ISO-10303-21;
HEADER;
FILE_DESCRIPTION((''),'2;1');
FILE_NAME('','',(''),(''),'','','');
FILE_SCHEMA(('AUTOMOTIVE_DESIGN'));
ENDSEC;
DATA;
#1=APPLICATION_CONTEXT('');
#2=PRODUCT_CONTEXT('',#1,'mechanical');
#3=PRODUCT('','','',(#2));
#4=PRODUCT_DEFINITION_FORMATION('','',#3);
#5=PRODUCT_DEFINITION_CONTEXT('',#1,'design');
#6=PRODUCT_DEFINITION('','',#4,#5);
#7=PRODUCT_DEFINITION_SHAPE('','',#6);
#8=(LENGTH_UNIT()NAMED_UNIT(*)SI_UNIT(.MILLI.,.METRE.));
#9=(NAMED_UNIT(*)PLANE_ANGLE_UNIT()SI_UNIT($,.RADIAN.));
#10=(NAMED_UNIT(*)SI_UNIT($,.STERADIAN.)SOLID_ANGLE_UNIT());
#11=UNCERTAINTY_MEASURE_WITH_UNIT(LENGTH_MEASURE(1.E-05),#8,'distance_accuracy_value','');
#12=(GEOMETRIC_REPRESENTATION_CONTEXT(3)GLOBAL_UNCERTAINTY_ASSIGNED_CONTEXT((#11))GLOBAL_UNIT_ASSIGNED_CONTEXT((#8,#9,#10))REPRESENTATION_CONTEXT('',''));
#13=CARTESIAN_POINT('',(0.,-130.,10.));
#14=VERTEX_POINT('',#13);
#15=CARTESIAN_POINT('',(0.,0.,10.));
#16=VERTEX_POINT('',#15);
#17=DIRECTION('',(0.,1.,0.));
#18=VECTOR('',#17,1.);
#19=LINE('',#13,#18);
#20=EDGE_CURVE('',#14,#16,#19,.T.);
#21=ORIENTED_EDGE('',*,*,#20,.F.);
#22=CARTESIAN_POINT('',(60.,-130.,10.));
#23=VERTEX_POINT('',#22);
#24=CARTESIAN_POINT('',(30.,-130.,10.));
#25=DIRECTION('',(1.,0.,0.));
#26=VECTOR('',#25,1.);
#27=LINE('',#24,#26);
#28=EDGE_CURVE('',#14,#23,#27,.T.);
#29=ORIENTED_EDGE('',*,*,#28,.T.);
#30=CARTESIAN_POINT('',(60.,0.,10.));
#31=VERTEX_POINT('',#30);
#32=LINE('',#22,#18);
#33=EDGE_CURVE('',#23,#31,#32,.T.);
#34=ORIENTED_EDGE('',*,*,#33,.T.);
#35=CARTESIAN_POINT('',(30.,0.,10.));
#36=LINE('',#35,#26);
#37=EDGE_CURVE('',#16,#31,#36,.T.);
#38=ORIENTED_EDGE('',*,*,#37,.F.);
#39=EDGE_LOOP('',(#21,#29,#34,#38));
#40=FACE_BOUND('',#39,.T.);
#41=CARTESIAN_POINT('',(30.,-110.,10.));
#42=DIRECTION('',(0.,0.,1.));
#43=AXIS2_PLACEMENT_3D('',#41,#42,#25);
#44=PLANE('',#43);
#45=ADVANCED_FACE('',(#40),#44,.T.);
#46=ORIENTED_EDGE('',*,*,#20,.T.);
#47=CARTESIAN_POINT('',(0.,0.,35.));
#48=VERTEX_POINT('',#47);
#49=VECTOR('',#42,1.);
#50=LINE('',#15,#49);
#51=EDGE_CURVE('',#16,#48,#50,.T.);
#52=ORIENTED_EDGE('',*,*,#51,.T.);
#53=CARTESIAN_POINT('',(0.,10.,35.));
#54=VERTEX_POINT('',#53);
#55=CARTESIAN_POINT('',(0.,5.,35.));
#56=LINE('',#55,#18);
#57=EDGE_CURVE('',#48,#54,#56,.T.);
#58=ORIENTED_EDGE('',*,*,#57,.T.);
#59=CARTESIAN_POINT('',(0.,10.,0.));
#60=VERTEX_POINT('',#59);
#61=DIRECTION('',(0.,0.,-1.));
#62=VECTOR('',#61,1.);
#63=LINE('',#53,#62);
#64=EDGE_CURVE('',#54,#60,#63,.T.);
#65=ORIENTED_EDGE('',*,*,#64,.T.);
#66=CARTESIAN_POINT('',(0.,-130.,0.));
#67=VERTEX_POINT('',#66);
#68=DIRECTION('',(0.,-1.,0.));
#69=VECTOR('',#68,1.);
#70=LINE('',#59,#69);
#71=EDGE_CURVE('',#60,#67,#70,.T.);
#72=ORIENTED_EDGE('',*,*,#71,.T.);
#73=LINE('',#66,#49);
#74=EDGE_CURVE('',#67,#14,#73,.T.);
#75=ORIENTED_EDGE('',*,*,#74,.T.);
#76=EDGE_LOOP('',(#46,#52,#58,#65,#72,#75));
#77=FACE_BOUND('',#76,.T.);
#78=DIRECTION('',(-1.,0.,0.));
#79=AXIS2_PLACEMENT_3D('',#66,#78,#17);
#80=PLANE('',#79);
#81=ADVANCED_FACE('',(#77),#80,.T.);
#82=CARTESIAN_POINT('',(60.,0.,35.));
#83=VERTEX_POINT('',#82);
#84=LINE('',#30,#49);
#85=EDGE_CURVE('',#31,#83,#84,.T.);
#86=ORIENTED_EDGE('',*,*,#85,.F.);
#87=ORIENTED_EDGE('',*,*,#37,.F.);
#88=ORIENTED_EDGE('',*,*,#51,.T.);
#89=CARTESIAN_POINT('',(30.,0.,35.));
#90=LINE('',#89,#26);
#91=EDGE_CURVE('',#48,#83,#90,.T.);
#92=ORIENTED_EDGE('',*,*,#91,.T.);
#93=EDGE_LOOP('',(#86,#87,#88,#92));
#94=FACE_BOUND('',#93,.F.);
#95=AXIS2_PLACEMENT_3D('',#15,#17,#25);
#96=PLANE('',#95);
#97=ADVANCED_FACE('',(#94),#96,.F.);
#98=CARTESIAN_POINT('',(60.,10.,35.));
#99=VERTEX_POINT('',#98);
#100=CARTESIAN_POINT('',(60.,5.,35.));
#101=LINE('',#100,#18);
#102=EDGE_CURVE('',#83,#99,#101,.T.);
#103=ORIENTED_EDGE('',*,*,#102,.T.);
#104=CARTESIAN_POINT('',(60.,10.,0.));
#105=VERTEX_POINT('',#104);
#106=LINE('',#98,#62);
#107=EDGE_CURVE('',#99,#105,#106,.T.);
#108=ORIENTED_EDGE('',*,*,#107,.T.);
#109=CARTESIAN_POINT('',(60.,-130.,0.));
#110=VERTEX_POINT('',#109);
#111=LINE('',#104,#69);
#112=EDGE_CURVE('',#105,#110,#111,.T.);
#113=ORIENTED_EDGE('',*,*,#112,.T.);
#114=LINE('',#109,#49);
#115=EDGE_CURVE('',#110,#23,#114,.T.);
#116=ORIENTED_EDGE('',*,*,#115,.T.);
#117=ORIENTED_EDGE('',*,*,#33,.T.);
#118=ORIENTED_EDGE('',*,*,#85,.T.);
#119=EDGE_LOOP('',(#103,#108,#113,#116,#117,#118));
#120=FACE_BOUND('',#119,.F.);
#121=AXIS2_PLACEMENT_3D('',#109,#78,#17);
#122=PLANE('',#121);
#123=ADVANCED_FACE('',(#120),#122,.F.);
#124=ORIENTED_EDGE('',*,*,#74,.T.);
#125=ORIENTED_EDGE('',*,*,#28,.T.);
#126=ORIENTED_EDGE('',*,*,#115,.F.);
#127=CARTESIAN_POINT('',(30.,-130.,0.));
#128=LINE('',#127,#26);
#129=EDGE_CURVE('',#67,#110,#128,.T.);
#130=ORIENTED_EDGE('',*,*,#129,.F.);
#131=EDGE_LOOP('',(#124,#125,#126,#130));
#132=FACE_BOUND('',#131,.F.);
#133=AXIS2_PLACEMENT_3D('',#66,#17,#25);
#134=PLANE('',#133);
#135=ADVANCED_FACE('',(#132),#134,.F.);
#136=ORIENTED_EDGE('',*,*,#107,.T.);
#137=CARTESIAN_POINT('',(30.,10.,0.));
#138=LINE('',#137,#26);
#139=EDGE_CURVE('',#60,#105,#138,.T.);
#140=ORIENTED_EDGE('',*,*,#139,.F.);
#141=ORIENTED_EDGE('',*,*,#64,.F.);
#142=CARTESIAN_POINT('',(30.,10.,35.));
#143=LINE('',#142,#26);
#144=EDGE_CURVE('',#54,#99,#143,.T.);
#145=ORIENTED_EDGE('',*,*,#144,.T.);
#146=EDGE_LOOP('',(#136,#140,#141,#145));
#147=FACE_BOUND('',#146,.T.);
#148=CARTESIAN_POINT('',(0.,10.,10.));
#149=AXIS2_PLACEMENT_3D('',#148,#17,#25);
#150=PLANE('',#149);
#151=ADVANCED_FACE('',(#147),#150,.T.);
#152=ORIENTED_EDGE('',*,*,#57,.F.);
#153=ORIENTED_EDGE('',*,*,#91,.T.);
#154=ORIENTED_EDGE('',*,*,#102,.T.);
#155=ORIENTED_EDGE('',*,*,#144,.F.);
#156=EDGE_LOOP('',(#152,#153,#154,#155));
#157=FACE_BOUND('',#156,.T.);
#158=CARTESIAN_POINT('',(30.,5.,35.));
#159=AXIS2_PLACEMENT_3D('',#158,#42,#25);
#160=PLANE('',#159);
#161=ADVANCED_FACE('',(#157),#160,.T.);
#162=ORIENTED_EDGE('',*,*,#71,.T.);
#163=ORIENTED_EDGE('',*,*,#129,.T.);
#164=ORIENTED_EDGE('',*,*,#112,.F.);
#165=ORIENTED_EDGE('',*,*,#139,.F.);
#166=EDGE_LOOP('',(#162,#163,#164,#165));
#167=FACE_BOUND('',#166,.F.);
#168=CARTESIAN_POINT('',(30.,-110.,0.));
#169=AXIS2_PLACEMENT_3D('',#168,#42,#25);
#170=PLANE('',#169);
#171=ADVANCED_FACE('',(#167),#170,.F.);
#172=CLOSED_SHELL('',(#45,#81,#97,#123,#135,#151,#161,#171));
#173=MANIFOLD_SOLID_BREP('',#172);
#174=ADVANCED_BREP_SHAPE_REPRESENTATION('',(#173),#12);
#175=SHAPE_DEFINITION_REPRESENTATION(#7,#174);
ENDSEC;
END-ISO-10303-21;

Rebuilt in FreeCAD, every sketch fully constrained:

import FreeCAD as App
import Part
import Sketcher
from FreeCAD import Vector
Q = App.Units.Quantity


def add_polygon(sketch, points):
    """Adds a closed chain of lines whose ends are joined by coincident constraints."""
    first, n = sketch.GeometryCount, len(points)
    for a, b in zip(points, points[1:] + points[:1]):
        sketch.addGeometry(Part.LineSegment(App.Vector(*a, 0), App.Vector(*b, 0)), False)
    for i in range(n):
        sketch.addConstraint(Sketcher.Constraint("Coincident", first + i, 2, first + (i + 1) % n, 1))

doc = App.newDocument("Part")
body = doc.addObject("PartDesign::Body", "Body")

sketch1 = body.newObject("Sketcher::SketchObject", "Sketch")
sketch1.AttachmentSupport = (doc.getObject("XY_Plane"), [""])
sketch1.MapMode = "FlatFace"
add_polygon(sketch1, [(0, -90), (0, -130), (60, -130), (60, -90)])
sketch1.addConstraint([
    Sketcher.Constraint("Vertical", 0),
    Sketcher.Constraint("Horizontal", 1),
    Sketcher.Constraint("Vertical", 2),
    Sketcher.Constraint("Horizontal", 3),
    Sketcher.Constraint("PointOnObject", 0, 2, -2),
    Sketcher.Constraint("DistanceX", 1, 1, 1, 2, Q("60 mm")),
    Sketcher.Constraint("DistanceY", 0, 2, 0, 1, Q("40 mm")),
    Sketcher.Constraint("DistanceY", 0, 2, -1, 1, Q("130 mm")),
])
pad1 = body.newObject("PartDesign::Pad", "Pad")
pad1.Profile = sketch1
pad1.Length = 10
body2 = doc.addObject("PartDesign::Body", "Body001")

sketch2 = body2.newObject("Sketcher::SketchObject", "Sketch001")
sketch2.AttachmentSupport = (doc.getObject("XY_Plane001"), [""])
sketch2.MapMode = "FlatFace"
sketch2.AttachmentOffset = App.Placement(Vector(0, 0, 10), App.Rotation())
add_polygon(sketch2, [(0, 10), (0, 0), (60, 0), (60, 10)])
sketch2.addConstraint([
    Sketcher.Constraint("Vertical", 0),
    Sketcher.Constraint("Horizontal", 1),
    Sketcher.Constraint("Vertical", 2),
    Sketcher.Constraint("Horizontal", 3),
    Sketcher.Constraint("Coincident", 0, 2, -1, 1),
    Sketcher.Constraint("DistanceX", 1, 1, 1, 2, Q("60 mm")),
    Sketcher.Constraint("DistanceY", 0, 2, 0, 1, Q("10 mm")),
])
pad2 = body2.newObject("PartDesign::Pad", "Pad001")
pad2.Profile = sketch2
pad2.Length = 25
body3 = doc.addObject("PartDesign::Body", "Body002")

sketch3 = body3.newObject("Sketcher::SketchObject", "Sketch002")
sketch3.AttachmentSupport = (doc.getObject("XY_Plane002"), [""])
sketch3.MapMode = "FlatFace"
add_polygon(sketch3, [(0, 10), (0, -90), (60, -90), (60, 10)])
sketch3.addConstraint([
    Sketcher.Constraint("Vertical", 0),
    Sketcher.Constraint("Horizontal", 1),
    Sketcher.Constraint("Vertical", 2),
    Sketcher.Constraint("Horizontal", 3),
    Sketcher.Constraint("PointOnObject", 0, 2, -2),
    Sketcher.Constraint("DistanceX", 1, 1, 1, 2, Q("60 mm")),
    Sketcher.Constraint("DistanceY", 0, 2, 0, 1, Q("100 mm")),
    Sketcher.Constraint("DistanceY", 0, 2, -1, 1, Q("90 mm")),
])
pad3 = body3.newObject("PartDesign::Pad", "Pad002")
pad3.Profile = sketch3
pad3.Length = 10
doc.recompute()

boolean = body3.newObject("PartDesign::Boolean", "Boolean")
boolean.Type = "Fuse"
boolean.addObjects([body2])
doc.recompute()

boolean2 = body3.newObject("PartDesign::Boolean", "Boolean001")
boolean2.Type = "Fuse"
boolean2.addObjects([body])

doc.recompute()
